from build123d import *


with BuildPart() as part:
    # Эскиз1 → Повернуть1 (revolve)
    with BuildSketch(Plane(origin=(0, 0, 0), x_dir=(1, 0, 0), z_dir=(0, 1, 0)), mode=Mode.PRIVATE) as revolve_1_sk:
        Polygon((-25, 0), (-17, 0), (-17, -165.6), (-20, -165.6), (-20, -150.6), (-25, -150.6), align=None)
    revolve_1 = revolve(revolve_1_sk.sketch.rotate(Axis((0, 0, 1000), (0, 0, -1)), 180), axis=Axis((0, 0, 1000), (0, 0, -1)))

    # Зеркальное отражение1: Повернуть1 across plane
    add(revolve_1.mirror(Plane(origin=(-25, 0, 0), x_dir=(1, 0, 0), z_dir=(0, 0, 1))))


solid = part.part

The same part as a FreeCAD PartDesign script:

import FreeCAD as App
import Part
import Sketcher
Q = App.Units.Quantity


def add_polygon(sketch, points):
    """Adds a closed chain of lines whose ends are joined by coincident constraints."""
    first, n = sketch.GeometryCount, len(points)
    for a, b in zip(points, points[1:] + points[:1]):
        sketch.addGeometry(Part.LineSegment(App.Vector(*a, 0), App.Vector(*b, 0)), False)
    for i in range(n):
        sketch.addConstraint(Sketcher.Constraint("Coincident", first + i, 2, first + (i + 1) % n, 1))

doc = App.newDocument("Part")
body = doc.addObject("PartDesign::Body", "Body")

# Sketch on XZ plane
sketch1 = body.newObject("Sketcher::SketchObject", "Sketch")
sketch1.AttachmentSupport = (doc.getObject("XZ_Plane"), [""])
sketch1.MapMode = "FlatFace"
add_polygon(sketch1, [(-17, 0), (-25, 0), (-25, 150.6), (-20, 150.6), (-20, 165.6), (-17, 165.6)])  # lines 0-5
sketch1.addConstraint([
    Sketcher.Constraint("Horizontal", 0),
    Sketcher.Constraint("Vertical", 1),
    Sketcher.Constraint("Horizontal", 2),
    Sketcher.Constraint("Vertical", 3),
    Sketcher.Constraint("Horizontal", 4),
    Sketcher.Constraint("Vertical", 5),
    Sketcher.Constraint("PointOnObject", 0, 2, -1),
    Sketcher.Constraint("DistanceX", 0, 2, 0, 1, Q("8 mm")),
    Sketcher.Constraint("DistanceX", 2, 1, 2, 2, Q("5 mm")),
    Sketcher.Constraint("DistanceY", 3, 1, 3, 2, Q("15 mm")),
    Sketcher.Constraint("DistanceY", 1, 1, 1, 2, Q("150.6 mm")),
    Sketcher.Constraint("DistanceX", 0, 2, -1, 1, Q("25 mm")),
])
revolution = body.newObject("PartDesign::Revolution", "Revolution")
revolution.Profile = sketch1
revolution.ReferenceAxis = (sketch1, ["V_Axis"])
revolution.Angle = 360
doc.recompute()

mirrored = body.newObject("PartDesign::Mirrored", "Mirrored")
mirrored.Originals = [revolution]
mirrored.MirrorPlane = (doc.getObject("XY_Plane"), [""])
body.Tip = mirrored

doc.recompute()
